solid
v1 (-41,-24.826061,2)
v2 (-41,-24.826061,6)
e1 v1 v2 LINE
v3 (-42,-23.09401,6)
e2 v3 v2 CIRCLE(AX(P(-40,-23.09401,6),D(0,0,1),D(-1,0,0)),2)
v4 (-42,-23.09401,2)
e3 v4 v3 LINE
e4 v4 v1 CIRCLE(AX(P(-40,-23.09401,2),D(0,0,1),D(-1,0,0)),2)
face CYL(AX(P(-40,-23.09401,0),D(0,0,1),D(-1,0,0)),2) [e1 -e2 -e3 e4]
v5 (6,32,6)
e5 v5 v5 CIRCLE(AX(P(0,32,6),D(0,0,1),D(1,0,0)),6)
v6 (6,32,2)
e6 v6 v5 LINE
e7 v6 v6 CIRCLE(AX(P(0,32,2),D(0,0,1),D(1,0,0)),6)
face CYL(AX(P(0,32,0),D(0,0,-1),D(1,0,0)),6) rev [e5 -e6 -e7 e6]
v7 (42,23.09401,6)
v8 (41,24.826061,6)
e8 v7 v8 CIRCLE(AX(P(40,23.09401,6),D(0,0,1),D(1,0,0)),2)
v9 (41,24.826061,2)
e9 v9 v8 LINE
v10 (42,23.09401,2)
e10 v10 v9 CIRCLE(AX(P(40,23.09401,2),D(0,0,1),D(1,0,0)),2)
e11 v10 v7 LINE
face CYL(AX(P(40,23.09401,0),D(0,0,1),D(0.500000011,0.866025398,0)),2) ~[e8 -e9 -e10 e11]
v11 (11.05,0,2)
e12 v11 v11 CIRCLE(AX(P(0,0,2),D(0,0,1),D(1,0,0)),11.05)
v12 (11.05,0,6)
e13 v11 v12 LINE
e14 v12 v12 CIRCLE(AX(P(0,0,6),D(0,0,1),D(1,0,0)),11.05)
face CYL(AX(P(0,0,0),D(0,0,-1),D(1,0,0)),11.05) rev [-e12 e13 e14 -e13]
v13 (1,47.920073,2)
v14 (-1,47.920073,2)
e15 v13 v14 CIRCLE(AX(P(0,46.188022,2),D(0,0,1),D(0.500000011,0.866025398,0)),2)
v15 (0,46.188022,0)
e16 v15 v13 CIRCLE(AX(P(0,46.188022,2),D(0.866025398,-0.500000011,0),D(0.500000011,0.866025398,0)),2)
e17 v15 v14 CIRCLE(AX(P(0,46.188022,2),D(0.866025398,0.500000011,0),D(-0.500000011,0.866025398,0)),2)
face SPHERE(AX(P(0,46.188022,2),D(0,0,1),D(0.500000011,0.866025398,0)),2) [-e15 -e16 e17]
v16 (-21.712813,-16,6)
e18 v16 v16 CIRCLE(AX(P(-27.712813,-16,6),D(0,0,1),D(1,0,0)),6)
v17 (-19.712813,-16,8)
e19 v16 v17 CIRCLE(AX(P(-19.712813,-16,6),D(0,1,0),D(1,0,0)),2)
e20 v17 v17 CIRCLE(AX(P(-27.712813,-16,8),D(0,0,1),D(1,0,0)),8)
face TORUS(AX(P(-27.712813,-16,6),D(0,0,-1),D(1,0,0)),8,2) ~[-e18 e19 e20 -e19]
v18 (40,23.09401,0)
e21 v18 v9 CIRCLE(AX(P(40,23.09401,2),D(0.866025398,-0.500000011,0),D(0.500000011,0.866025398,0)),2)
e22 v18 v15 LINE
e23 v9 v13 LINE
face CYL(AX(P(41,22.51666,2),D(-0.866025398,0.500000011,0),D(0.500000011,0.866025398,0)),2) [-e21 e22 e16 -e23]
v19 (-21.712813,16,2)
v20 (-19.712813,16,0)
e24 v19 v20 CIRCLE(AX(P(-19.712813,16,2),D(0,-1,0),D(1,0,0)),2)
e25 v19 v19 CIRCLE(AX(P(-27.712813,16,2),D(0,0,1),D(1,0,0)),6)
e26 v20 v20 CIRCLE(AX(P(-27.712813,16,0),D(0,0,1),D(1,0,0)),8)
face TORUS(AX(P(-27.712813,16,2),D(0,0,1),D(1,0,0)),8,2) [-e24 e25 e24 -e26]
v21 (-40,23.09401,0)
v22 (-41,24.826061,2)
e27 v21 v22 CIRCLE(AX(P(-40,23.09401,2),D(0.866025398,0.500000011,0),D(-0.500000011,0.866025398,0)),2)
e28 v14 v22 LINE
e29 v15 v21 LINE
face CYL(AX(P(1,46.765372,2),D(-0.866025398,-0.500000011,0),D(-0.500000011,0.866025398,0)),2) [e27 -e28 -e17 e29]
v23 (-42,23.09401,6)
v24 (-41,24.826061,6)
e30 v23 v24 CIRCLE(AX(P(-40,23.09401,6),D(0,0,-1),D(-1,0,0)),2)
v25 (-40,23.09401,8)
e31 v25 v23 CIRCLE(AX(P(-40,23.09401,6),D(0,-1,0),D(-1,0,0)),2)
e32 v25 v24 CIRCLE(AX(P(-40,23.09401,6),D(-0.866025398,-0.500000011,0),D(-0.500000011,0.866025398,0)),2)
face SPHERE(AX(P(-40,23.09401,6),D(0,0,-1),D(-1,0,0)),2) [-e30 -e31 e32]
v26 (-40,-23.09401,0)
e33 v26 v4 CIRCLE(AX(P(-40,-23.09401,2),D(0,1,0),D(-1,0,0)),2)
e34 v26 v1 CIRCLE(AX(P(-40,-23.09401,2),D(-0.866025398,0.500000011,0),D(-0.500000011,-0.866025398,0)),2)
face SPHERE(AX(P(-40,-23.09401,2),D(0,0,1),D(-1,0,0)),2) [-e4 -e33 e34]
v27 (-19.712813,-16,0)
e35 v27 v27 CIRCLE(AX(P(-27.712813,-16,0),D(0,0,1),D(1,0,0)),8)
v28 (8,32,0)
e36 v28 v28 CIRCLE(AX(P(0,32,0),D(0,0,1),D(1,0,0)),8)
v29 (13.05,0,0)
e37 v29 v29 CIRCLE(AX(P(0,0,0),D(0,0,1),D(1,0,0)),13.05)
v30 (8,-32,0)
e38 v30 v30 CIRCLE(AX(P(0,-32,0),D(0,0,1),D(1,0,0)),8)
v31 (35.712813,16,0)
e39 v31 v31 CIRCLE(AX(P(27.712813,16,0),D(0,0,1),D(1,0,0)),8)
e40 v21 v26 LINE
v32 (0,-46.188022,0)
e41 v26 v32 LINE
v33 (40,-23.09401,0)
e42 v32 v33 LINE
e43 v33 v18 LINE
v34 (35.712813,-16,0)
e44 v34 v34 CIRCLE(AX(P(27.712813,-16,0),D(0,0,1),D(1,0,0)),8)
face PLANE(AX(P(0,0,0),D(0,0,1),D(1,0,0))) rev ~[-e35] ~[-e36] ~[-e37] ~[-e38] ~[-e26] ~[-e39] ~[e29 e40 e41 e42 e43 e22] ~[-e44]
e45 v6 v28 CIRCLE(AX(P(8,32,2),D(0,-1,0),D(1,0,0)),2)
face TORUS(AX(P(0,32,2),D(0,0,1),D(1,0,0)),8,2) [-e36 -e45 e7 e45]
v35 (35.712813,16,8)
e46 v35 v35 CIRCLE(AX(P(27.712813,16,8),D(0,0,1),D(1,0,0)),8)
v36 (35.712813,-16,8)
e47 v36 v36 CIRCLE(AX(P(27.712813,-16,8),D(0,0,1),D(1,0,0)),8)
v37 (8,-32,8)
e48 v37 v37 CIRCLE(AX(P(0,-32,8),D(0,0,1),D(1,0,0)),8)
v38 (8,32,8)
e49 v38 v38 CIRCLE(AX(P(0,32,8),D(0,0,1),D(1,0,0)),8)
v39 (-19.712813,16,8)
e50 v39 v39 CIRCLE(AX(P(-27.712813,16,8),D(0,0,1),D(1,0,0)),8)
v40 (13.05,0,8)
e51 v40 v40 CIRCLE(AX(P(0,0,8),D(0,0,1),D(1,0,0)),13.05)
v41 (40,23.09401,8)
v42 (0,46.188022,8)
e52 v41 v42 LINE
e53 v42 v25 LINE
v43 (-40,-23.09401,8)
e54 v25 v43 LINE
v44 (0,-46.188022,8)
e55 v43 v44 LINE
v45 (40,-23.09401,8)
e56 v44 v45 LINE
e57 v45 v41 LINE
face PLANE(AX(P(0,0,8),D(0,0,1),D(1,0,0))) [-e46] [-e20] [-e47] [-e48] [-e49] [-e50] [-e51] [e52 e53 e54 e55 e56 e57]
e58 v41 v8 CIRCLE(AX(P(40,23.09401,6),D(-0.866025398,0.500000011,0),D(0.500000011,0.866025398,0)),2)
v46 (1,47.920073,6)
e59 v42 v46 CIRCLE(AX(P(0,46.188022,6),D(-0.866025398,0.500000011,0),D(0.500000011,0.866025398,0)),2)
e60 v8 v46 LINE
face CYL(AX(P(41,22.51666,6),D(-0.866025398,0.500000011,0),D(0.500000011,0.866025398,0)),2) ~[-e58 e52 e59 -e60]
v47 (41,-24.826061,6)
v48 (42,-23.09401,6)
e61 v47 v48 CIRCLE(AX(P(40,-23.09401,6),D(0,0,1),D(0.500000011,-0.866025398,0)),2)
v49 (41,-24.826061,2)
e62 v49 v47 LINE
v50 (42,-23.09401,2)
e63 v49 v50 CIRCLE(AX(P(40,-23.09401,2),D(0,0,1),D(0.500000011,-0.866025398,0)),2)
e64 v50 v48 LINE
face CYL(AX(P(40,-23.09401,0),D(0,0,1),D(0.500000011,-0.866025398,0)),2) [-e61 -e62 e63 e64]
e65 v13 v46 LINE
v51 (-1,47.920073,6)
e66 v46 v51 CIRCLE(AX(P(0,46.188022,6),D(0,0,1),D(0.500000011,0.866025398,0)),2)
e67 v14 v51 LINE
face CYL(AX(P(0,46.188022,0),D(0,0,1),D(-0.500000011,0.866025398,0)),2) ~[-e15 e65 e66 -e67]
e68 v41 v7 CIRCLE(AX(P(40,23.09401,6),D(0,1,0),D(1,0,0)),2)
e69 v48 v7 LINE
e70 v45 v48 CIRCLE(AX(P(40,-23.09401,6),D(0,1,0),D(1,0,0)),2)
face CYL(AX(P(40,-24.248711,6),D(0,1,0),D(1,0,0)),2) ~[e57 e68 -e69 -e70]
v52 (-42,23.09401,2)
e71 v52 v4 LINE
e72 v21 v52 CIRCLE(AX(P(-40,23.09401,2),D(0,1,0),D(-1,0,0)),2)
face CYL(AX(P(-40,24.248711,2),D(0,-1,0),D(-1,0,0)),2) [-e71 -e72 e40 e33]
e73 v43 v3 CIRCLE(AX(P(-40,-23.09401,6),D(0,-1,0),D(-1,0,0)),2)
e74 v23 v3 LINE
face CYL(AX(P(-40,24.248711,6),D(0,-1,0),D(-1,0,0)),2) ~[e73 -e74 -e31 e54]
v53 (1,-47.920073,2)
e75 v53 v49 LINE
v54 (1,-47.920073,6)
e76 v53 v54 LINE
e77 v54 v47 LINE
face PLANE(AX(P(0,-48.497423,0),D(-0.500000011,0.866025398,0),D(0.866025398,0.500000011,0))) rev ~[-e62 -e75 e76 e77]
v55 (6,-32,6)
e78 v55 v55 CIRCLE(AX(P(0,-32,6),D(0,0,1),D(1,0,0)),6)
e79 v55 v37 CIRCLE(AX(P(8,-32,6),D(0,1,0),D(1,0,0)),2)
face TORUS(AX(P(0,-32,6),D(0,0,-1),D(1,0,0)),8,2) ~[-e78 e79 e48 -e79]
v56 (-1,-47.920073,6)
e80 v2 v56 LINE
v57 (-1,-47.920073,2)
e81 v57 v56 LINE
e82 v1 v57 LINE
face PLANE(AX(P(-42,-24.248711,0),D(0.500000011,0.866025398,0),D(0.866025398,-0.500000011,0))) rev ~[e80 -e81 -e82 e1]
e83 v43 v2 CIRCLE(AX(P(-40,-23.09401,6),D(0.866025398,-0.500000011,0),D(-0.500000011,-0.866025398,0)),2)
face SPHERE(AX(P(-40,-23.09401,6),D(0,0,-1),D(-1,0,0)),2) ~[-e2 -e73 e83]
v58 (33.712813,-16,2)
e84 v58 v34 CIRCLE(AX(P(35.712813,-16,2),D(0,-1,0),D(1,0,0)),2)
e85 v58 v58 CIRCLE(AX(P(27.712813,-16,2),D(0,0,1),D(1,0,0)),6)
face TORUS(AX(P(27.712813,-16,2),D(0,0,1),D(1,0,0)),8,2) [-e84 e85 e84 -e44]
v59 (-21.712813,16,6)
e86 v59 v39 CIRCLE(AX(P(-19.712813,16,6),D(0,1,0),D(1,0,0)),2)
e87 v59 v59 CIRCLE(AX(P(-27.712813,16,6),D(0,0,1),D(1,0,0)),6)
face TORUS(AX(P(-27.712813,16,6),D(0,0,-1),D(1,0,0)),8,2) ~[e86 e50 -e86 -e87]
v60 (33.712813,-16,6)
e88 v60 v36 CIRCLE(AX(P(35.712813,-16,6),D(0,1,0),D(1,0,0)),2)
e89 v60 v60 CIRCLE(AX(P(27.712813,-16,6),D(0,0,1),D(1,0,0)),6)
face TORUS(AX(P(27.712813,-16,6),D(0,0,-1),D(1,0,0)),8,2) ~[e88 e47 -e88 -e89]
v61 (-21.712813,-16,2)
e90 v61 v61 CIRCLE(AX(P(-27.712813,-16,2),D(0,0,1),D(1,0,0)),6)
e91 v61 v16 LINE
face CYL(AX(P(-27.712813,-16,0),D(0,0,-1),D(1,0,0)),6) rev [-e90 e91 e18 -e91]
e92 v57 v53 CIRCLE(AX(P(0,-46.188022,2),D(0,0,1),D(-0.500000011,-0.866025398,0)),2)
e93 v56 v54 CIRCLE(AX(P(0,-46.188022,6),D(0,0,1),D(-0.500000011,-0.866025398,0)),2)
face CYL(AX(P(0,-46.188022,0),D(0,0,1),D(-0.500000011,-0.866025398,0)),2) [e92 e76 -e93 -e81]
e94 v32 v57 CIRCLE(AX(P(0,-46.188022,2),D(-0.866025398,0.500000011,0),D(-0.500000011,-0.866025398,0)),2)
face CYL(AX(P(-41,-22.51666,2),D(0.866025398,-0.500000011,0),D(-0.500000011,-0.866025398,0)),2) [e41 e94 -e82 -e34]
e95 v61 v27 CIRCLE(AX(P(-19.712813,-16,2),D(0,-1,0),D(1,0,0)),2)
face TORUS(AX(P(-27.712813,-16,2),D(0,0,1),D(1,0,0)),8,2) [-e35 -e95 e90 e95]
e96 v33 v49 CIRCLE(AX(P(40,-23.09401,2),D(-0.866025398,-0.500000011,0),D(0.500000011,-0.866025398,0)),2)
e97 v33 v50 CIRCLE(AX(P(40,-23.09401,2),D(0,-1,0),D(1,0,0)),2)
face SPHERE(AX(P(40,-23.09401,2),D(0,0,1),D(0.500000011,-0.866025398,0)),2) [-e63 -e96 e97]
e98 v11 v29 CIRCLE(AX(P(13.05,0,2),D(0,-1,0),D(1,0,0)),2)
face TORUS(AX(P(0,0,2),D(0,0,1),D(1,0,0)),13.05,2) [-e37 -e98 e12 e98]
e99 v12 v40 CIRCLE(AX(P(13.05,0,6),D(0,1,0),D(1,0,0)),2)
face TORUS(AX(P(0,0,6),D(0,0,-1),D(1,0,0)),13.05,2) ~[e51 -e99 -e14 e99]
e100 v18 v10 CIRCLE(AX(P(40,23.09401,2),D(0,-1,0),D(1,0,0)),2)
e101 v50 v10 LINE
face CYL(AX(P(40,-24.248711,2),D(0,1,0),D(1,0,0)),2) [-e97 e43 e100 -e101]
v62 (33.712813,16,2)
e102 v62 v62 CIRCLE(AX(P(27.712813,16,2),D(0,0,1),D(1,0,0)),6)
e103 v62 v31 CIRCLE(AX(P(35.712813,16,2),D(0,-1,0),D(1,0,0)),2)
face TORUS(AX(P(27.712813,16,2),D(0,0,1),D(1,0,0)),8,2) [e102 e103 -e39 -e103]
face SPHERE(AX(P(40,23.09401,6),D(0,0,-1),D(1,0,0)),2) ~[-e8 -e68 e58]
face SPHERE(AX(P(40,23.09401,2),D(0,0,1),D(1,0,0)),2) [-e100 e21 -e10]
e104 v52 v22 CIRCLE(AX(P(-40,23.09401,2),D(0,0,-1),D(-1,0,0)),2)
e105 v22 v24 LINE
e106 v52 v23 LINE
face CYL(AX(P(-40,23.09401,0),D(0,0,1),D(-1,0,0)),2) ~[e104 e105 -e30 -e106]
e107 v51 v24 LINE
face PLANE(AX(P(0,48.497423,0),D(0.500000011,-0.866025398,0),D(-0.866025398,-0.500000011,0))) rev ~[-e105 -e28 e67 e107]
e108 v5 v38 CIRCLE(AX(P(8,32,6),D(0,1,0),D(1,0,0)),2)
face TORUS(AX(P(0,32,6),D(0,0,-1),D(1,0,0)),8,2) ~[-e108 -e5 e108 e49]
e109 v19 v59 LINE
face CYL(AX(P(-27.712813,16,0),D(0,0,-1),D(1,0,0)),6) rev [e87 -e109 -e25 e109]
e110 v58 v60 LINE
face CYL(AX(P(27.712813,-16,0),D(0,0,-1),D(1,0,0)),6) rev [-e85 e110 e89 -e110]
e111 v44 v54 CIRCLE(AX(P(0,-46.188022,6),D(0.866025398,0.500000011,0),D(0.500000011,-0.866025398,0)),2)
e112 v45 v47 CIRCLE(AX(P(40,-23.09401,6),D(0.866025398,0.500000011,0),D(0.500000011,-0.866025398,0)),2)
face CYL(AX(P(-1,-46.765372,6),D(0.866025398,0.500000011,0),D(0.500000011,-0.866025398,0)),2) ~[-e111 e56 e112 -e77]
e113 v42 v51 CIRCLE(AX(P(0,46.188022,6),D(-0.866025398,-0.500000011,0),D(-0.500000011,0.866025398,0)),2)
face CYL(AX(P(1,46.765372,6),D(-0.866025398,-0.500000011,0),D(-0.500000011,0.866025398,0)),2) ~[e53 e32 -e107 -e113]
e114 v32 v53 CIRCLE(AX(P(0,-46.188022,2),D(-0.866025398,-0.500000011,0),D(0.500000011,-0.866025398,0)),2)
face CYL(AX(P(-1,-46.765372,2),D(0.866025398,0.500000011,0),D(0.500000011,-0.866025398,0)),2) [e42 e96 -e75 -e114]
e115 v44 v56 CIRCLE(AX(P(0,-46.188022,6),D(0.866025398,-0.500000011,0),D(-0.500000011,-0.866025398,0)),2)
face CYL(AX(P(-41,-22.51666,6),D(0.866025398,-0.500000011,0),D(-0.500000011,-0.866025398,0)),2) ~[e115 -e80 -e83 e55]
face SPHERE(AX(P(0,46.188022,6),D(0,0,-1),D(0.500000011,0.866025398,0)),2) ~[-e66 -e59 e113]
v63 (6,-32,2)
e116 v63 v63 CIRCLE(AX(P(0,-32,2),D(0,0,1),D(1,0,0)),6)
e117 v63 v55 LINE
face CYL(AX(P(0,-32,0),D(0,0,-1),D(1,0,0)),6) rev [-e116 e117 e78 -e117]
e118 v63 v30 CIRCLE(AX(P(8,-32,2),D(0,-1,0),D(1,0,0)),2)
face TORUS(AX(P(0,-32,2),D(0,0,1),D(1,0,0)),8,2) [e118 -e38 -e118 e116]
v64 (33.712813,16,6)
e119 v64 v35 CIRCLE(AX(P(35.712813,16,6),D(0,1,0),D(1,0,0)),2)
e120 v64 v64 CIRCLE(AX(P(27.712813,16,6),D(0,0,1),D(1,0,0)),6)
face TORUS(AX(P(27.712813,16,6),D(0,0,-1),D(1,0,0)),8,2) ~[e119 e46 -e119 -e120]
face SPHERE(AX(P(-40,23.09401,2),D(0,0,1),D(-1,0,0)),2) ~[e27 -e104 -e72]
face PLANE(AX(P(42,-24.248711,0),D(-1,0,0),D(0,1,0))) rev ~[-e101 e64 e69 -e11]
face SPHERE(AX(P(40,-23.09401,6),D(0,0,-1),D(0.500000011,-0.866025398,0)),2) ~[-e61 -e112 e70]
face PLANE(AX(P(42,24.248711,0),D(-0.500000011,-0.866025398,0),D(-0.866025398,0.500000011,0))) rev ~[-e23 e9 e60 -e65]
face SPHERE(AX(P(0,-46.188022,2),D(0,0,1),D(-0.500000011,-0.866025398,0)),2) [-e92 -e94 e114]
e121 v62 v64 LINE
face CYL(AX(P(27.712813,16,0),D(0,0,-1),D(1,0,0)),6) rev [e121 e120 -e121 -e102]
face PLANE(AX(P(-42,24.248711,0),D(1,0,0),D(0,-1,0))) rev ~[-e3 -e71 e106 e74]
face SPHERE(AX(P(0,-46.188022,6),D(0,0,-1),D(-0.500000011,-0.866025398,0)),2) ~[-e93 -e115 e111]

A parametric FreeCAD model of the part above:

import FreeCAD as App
import Part
import Sketcher
Q = App.Units.Quantity


def add_polygon(sketch, points):
    """Adds a closed chain of lines whose ends are joined by coincident constraints."""
    first, n = sketch.GeometryCount, len(points)
    for a, b in zip(points, points[1:] + points[:1]):
        sketch.addGeometry(Part.LineSegment(App.Vector(*a, 0), App.Vector(*b, 0)), False)
    for i in range(n):
        sketch.addConstraint(Sketcher.Constraint("Coincident", first + i, 2, first + (i + 1) % n, 1))

doc = App.newDocument("Part")
body = doc.addObject("PartDesign::Body", "Body")

# Sketch on XY plane
sketch1 = body.newObject("Sketcher::SketchObject", "Sketch")
sketch1.AttachmentSupport = (doc.getObject("XY_Plane"), [""])
sketch1.MapMode = "FlatFace"
add_polygon(sketch1, [(-42, 24), (-42, -24), (0, -48), (42, -24), (42, 24), (0, 48)])  # lines 0-5
sketch1.addGeometry(Part.Circle(App.Vector(-28, -16, 0), App.Vector(0, 0, 1), 6), False)  # 6
sketch1.addGeometry(Part.Circle(App.Vector(0, -32, 0), App.Vector(0, 0, 1), 6), False)  # 7
sketch1.addGeometry(Part.Circle(App.Vector(28, -16, 0), App.Vector(0, 0, 1), 6), False)  # 8
sketch1.addGeometry(Part.Circle(App.Vector(-28, 16, 0), App.Vector(0, 0, 1), 6), False)  # 9
sketch1.addGeometry(Part.Circle(App.Vector(0, 0, 0), App.Vector(0, 0, 1), 11), False)  # 10
sketch1.addGeometry(Part.Circle(App.Vector(28, 16, 0), App.Vector(0, 0, 1), 6), False)  # 11
sketch1.addGeometry(Part.Circle(App.Vector(0, 32, 0), App.Vector(0, 0, 1), 6), False)  # 12
sketch1.addConstraint(Sketcher.Constraint("Vertical", 0))
sketch1.addConstraint(Sketcher.Constraint("Vertical", 3))
sketch1.addConstraint(Sketcher.Constraint("Coincident", 10, 3, -1, 1))
sketch1.addConstraint(Sketcher.Constraint("Equal", 6, 7))
sketch1.addConstraint(Sketcher.Constraint("Equal", 7, 8))
sketch1.addConstraint(Sketcher.Constraint("Equal", 8, 9))
sketch1.addConstraint(Sketcher.Constraint("Equal", 9, 11))
sketch1.addConstraint(Sketcher.Constraint("Equal", 11, 12))
sketch1.addConstraint(Sketcher.Constraint("Symmetric", 8, 3, 9, 3, -1, 1))
sketch1.addConstraint(Sketcher.Constraint("Symmetric", 6, 3, 11, 3, -1, 1))
sketch1.addConstraint(Sketcher.Constraint("Symmetric", 7, 3, 12, 3, -1, 1))
sketch1.addConstraint(Sketcher.Constraint("Symmetric", 0, 2, 3, 2, -1, 1))
sketch1.addConstraint(Sketcher.Constraint("Symmetric", 1, 2, 4, 2, -1, 1))
sketch1.addConstraint(Sketcher.Constraint("Symmetric", 6, 3, 8, 3, -2))
sketch1.addConstraint(Sketcher.Constraint("PointOnObject", 7, 3, -2))
sketch1.addConstraint(Sketcher.Constraint("PointOnObject", 1, 2, -2))
sketch1.addConstraint(Sketcher.Constraint("Parallel", 2, 5))
sketch1.addConstraint(Sketcher.Constraint("Horizontal", 0, 2, 2, 2))
sketch1.addConstraint(Sketcher.Constraint("Diameter", 6, Q("12 mm")))
sketch1.addConstraint(Sketcher.Constraint("Diameter", 10, Q("22.1 mm")))
sketch1.addConstraint(Sketcher.Constraint("Angle", 1, Q("-30.000001 deg")))
sketch1.addConstraint(Sketcher.Constraint("DistanceY", 6, 3, -1, 1, Q("16 mm")))
sketch1.addConstraint(Sketcher.Constraint("DistanceY", 7, 3, -1, 1, Q("32 mm")))
sketch1.addConstraint(Sketcher.Constraint("DistanceX", 0, 2, -1, 1, Q("42 mm")))
sketch1.addConstraint(Sketcher.Constraint("DistanceY", 0, 2, 0, 1, Q("48.497422 mm")))
sketch1.addConstraint(Sketcher.Constraint("DistanceX", 6, 3, -1, 1, Q("27.712813 mm")))
pad1 = body.newObject("PartDesign::Pad", "Pad")
pad1.Profile = sketch1
pad1.Length = 8
doc.recompute()

fillet = body.newObject("PartDesign::Fillet", "Fillet")
fillet.Base = (pad1, ["Edge1"])
fillet.UseAllEdges = True
fillet.Radius = 2

doc.recompute()
